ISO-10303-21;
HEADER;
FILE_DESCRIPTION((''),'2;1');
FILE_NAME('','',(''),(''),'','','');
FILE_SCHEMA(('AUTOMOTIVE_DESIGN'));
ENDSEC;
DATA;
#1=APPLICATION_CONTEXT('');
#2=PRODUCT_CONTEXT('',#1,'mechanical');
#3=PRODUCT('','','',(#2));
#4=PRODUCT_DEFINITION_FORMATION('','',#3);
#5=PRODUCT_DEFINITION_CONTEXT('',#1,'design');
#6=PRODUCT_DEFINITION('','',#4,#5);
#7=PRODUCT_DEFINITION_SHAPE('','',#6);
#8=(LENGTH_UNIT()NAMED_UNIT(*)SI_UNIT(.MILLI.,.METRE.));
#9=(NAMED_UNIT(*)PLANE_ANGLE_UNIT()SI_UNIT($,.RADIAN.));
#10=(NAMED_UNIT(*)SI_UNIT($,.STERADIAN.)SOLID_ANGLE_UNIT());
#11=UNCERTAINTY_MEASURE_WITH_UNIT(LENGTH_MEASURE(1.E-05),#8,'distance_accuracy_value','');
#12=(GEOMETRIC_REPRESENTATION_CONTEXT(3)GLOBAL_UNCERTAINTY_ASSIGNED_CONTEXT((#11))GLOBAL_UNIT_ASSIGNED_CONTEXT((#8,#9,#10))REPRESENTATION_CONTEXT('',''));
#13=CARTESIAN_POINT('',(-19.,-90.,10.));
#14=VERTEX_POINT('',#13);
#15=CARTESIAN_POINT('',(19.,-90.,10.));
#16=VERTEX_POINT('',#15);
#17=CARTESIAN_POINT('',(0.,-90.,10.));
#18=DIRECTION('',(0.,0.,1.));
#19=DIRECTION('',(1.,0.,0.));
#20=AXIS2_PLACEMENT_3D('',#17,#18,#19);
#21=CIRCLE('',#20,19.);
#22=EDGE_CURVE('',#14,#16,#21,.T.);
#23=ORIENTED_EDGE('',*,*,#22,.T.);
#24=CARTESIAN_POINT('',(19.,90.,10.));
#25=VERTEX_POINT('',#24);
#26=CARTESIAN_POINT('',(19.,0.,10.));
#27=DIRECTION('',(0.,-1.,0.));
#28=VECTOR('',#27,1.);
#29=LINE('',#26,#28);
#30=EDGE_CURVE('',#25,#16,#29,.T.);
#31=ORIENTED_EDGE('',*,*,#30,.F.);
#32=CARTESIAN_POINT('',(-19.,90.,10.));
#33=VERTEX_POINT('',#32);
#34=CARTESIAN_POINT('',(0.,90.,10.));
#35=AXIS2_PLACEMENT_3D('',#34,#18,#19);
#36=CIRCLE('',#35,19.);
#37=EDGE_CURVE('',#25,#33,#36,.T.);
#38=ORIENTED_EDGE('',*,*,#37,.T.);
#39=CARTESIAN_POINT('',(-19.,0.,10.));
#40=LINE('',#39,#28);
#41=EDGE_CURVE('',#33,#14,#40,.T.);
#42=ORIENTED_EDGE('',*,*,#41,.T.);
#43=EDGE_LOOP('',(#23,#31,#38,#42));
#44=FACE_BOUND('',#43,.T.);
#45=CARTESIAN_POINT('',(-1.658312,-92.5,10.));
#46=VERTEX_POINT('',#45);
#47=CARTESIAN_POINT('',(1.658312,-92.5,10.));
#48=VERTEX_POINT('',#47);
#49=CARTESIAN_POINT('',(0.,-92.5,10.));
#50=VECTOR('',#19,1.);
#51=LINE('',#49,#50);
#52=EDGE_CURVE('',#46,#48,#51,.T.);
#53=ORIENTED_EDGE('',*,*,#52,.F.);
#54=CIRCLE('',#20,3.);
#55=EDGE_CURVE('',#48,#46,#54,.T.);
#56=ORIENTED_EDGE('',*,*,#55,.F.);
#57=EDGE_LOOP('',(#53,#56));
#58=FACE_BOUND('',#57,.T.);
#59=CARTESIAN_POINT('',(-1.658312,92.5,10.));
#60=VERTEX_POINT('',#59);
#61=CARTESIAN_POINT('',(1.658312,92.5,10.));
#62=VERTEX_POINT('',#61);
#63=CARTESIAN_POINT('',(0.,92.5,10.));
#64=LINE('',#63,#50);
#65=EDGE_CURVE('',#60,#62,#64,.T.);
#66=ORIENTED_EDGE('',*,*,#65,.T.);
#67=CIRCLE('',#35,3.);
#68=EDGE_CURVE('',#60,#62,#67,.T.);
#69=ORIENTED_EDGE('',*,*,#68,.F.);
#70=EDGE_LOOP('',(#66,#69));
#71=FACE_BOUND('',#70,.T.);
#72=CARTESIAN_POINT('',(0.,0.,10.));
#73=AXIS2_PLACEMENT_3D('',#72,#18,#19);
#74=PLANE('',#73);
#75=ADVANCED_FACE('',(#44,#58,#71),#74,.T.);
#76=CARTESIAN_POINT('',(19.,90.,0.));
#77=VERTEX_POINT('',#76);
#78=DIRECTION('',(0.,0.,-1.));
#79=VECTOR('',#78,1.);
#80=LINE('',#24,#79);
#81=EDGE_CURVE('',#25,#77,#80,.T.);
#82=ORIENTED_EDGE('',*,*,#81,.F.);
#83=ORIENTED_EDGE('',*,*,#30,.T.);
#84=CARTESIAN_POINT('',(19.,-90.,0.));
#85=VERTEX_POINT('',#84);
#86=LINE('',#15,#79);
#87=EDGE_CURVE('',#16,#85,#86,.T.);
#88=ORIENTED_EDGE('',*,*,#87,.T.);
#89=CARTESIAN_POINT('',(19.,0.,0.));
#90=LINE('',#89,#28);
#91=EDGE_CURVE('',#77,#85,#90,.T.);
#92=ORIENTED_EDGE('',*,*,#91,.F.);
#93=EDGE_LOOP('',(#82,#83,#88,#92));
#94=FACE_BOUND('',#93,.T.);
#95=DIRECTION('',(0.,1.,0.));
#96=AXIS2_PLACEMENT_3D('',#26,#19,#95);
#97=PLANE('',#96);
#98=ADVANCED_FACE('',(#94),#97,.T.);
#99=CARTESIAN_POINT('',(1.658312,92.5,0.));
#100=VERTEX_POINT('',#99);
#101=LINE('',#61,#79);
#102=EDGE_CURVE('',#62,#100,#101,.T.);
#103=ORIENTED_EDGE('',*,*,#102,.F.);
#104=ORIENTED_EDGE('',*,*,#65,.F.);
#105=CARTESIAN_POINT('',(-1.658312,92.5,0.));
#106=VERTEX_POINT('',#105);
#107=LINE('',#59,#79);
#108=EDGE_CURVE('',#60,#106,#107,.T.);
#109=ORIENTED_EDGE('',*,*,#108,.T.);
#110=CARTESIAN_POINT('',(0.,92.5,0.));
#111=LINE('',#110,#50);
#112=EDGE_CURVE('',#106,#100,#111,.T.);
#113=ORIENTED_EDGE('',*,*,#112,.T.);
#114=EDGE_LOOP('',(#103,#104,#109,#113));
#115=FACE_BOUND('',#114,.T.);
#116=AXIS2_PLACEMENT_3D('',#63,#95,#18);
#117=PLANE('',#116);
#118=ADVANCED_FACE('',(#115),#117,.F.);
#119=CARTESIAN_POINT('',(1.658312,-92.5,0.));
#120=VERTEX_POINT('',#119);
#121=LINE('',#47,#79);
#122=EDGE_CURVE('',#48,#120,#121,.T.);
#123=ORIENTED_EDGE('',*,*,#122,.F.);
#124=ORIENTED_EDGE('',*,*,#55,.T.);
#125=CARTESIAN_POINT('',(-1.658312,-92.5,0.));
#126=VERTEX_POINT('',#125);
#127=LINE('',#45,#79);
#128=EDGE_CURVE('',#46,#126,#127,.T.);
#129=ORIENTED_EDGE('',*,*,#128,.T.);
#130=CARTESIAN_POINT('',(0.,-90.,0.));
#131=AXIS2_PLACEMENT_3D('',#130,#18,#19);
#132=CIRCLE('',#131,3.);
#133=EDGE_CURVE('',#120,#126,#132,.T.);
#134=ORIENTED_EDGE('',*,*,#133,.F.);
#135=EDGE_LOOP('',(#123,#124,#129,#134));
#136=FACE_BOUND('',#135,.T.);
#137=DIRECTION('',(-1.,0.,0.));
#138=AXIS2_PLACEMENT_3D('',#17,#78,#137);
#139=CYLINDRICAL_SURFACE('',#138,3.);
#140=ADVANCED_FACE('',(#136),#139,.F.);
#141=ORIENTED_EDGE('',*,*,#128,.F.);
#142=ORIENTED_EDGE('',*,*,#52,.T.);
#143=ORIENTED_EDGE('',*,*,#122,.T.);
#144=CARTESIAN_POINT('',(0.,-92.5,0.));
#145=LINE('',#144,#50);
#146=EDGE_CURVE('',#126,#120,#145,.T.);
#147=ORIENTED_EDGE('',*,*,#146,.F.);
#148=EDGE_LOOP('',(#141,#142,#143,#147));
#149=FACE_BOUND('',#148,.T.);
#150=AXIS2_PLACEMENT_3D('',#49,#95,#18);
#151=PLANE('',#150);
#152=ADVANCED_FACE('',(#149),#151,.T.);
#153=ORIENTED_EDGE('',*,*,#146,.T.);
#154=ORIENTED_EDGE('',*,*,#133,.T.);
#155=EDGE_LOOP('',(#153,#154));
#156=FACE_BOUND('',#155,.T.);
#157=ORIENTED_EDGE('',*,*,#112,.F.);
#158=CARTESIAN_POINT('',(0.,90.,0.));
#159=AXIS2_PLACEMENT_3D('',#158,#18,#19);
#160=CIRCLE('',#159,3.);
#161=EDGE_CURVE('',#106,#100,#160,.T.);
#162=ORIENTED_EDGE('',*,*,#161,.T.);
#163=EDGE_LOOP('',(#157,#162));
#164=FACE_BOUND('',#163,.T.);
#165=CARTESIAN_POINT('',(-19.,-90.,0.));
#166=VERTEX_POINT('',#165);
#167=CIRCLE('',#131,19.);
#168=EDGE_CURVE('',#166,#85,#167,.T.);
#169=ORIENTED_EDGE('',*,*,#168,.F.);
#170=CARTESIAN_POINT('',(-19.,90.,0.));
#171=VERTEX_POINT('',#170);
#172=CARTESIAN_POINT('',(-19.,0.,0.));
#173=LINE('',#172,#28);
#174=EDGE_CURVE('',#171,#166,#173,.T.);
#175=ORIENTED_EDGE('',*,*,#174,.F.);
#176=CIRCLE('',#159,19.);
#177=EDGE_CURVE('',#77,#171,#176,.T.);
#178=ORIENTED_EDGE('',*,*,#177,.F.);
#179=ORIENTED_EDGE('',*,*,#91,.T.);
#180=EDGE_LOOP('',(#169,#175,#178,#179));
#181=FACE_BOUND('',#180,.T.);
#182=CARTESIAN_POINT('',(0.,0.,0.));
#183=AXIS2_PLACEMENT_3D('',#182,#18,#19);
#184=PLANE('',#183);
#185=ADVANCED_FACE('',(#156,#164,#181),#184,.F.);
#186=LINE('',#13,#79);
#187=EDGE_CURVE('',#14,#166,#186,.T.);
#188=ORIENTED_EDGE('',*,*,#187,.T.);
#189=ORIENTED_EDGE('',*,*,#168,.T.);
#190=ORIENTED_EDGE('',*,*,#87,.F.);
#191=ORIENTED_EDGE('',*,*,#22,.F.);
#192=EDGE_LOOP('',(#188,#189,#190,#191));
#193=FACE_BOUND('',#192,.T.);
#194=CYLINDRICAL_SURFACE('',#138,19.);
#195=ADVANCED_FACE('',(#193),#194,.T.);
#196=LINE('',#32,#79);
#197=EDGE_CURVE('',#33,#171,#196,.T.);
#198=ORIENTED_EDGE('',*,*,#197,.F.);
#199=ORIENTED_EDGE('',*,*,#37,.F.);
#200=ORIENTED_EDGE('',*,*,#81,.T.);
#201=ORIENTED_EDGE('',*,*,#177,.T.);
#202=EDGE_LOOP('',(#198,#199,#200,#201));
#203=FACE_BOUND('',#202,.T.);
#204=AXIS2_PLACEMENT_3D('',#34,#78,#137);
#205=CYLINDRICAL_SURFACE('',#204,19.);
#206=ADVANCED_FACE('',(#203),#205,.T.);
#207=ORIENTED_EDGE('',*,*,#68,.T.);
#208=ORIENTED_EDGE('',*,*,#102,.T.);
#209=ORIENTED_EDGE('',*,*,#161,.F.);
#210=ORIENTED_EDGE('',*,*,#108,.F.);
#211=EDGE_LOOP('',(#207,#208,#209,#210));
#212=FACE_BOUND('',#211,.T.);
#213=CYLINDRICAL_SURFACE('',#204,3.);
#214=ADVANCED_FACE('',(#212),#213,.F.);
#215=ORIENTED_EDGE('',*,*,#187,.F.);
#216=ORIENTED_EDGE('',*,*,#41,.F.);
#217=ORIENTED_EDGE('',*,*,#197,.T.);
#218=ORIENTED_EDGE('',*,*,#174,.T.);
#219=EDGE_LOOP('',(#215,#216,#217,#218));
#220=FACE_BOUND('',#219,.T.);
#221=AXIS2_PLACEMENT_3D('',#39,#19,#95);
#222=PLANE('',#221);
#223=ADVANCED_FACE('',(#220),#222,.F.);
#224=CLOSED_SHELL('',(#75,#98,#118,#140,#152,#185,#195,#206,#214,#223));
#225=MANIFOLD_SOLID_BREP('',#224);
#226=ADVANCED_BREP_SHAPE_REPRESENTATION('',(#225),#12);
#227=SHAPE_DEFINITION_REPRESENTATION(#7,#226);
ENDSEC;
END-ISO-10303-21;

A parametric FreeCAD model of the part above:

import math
import FreeCAD as App
import Part
import Sketcher
from FreeCAD import Vector

doc = App.newDocument("Part")
body = doc.addObject("PartDesign::Body", "Body")

sketch1 = body.newObject("Sketcher::SketchObject", "Sketch")
sketch1.AttachmentSupport = (doc.getObject("XY_Plane"), [""])
sketch1.MapMode = "FlatFace"
sketch1.addGeometry([
    Part.LineSegment(Vector(19, -90, 0), Vector(19, 90, 0)),
    Part.ArcOfCircle(Part.Circle(Vector(0, 90, 0), Vector(0, 0, 1), 19), math.radians(0), math.radians(180)),
    Part.LineSegment(Vector(-19, 90, 0), Vector(-19, -90, 0)),
    Part.ArcOfCircle(Part.Circle(Vector(0, -90, 0), Vector(0, 0, 1), 19), math.radians(180), math.radians(360)),
    Part.LineSegment(Vector(1.7, -92.5, 0), Vector(-1.7, -92.5, 0)),
    Part.ArcOfCircle(Part.Circle(Vector(0, -90, 0), Vector(0, 0, 1), 3), math.radians(-56), math.radians(236)),
    Part.ArcOfCircle(Part.Circle(Vector(0, 90, 0), Vector(0, 0, 1), 3), math.radians(124), math.radians(416)),
    Part.LineSegment(Vector(-1.7, 92.5, 0), Vector(1.7, 92.5, 0)),
], False)
sketch1.addConstraint([
    Sketcher.Constraint("Tangent", 0, 2, 1, 1),
    Sketcher.Constraint("Tangent", 1, 2, 2, 1),
    Sketcher.Constraint("Tangent", 2, 2, 3, 1),
    Sketcher.Constraint("Tangent", 3, 2, 0, 1),
    Sketcher.Constraint("Coincident", 4, 1, 5, 1),
    Sketcher.Constraint("Coincident", 5, 2, 4, 2),
    Sketcher.Constraint("Coincident", 6, 1, 7, 1),
    Sketcher.Constraint("Coincident", 7, 2, 6, 2),
    Sketcher.Constraint("Vertical", 0),
    Sketcher.Constraint("Vertical", 2),
    Sketcher.Constraint("Horizontal", 4),
    Sketcher.Constraint("Horizontal", 7),
    Sketcher.Constraint("Coincident", 5, 3, 3, 3),
    Sketcher.Constraint("Coincident", 6, 3, 1, 3),
    Sketcher.Constraint("Equal", 5, 6),
    Sketcher.Constraint("Symmetric", 1, 3, 3, 3, -1, 1),
    Sketcher.Constraint("Vertical", 5, 2, 6, 1),
    Sketcher.Constraint("Radius", 1, 19.0),
    Sketcher.Constraint("Radius", 5, 3.0),
    Sketcher.Constraint("DistanceY", 0, 1, 0, 2, 180.0),
    Sketcher.Constraint("DistanceY", 4, 1, -1, 1, 92.5),
])
pad1 = body.newObject("PartDesign::Pad", "Pad")
pad1.Profile = sketch1
pad1.Length = 10

doc.recompute()
